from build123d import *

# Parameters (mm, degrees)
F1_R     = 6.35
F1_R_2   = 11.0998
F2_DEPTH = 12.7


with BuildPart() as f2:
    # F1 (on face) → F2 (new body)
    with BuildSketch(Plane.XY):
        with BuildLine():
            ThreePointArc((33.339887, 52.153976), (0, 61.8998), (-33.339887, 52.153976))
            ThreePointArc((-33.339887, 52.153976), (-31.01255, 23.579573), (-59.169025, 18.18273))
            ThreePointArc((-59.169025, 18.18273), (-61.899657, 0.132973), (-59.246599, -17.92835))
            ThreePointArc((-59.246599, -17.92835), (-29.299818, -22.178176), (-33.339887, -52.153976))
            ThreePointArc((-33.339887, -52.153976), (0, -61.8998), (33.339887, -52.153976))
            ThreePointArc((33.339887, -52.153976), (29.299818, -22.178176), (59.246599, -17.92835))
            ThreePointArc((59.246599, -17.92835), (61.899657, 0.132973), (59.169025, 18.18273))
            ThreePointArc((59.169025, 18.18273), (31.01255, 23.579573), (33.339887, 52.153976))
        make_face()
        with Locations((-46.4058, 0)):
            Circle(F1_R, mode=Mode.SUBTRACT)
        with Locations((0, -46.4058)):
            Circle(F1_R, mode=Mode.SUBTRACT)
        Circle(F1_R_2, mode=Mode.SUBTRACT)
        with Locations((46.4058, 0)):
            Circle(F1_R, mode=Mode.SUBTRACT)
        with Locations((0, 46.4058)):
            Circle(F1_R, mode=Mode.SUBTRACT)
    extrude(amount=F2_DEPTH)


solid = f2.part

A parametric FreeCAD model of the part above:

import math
import FreeCAD as App
import Part
import Sketcher
Q = App.Units.Quantity

doc = App.newDocument("Part")
body = doc.addObject("PartDesign::Body", "Body")

sketch1 = body.newObject("Sketcher::SketchObject", "Sketch")
sketch1.AttachmentSupport = (doc.getObject("XY_Plane"), [""])
sketch1.MapMode = "FlatFace"
sketch1.addGeometry(Part.ArcOfCircle(Part.Circle(App.Vector(0, 0, 0), App.Vector(0, 0, 1), 62), math.radians(57), math.radians(123)), False)
sketch1.addGeometry(Part.ArcOfCircle(Part.Circle(App.Vector(-48, 37, 0), App.Vector(0, 0, 1), 21), math.radians(-121), math.radians(47)), False)
sketch1.addGeometry(Part.ArcOfCircle(Part.Circle(App.Vector(0, 0, 0), App.Vector(0, 0, 1), 62), math.radians(163), math.radians(197)), False)
sketch1.addGeometry(Part.ArcOfCircle(Part.Circle(App.Vector(-46, -35, 0), App.Vector(0, 0, 1), 21), math.radians(-52), math.radians(127)), False)
sketch1.addGeometry(Part.ArcOfCircle(Part.Circle(App.Vector(0, 0, 0), App.Vector(0, 0, 1), 62), math.radians(-123), math.radians(-57)), False)
sketch1.addGeometry(Part.ArcOfCircle(Part.Circle(App.Vector(46, -35, 0), App.Vector(0, 0, 1), 21), math.radians(53), math.radians(232)), False)
sketch1.addGeometry(Part.ArcOfCircle(Part.Circle(App.Vector(0, 0, 0), App.Vector(0, 0, 1), 62), math.radians(-17), math.radians(17)), False)
sketch1.addGeometry(Part.ArcOfCircle(Part.Circle(App.Vector(48, 37, 0), App.Vector(0, 0, 1), 21), math.radians(133), math.radians(301)), False)
sketch1.addGeometry(Part.Circle(App.Vector(0, -46, 0), App.Vector(0, 0, 1), 6), False)
sketch1.addGeometry(Part.Circle(App.Vector(-46, 0, 0), App.Vector(0, 0, 1), 6), False)
sketch1.addGeometry(Part.Circle(App.Vector(0, 0, 0), App.Vector(0, 0, 1), 11), False)
sketch1.addGeometry(Part.Circle(App.Vector(46, 0, 0), App.Vector(0, 0, 1), 6), False)
sketch1.addGeometry(Part.Circle(App.Vector(0, 46, 0), App.Vector(0, 0, 1), 6), False)
sketch1.addConstraint(Sketcher.Constraint("Coincident", 0, 2, 1, 2))
sketch1.addConstraint(Sketcher.Constraint("Coincident", 1, 1, 2, 1))
sketch1.addConstraint(Sketcher.Constraint("Coincident", 2, 2, 3, 2))
sketch1.addConstraint(Sketcher.Constraint("Coincident", 3, 1, 4, 1))
sketch1.addConstraint(Sketcher.Constraint("Coincident", 4, 2, 5, 2))
sketch1.addConstraint(Sketcher.Constraint("Coincident", 5, 1, 6, 1))
sketch1.addConstraint(Sketcher.Constraint("Coincident", 6, 2, 7, 2))
sketch1.addConstraint(Sketcher.Constraint("Coincident", 7, 1, 0, 1))
sketch1.addConstraint(Sketcher.Constraint("Coincident", 0, 3, -1, 1))
sketch1.addConstraint(Sketcher.Constraint("Coincident", 2, 3, -1, 1))
sketch1.addConstraint(Sketcher.Constraint("Coincident", 4, 3, -1, 1))
sketch1.addConstraint(Sketcher.Constraint("Coincident", 6, 3, -1, 1))
sketch1.addConstraint(Sketcher.Constraint("Coincident", 10, 3, -1, 1))
sketch1.addConstraint(Sketcher.Constraint("Equal", 1, 3))
sketch1.addConstraint(Sketcher.Constraint("Equal", 0, 4))
sketch1.addConstraint(Sketcher.Constraint("Equal", 3, 5))
sketch1.addConstraint(Sketcher.Constraint("Equal", 2, 6))
sketch1.addConstraint(Sketcher.Constraint("Equal", 5, 7))
sketch1.addConstraint(Sketcher.Constraint("Equal", 8, 9))
sketch1.addConstraint(Sketcher.Constraint("Equal", 9, 11))
sketch1.addConstraint(Sketcher.Constraint("Equal", 11, 12))
sketch1.addConstraint(Sketcher.Constraint("Symmetric", 9, 3, 11, 3, -1, 1))
sketch1.addConstraint(Sketcher.Constraint("Symmetric", 8, 3, 12, 3, -1, 1))
sketch1.addConstraint(Sketcher.Constraint("Symmetric", 3, 3, 5, 3, -2))
sketch1.addConstraint(Sketcher.Constraint("Symmetric", 1, 3, 7, 3, -2))
sketch1.addConstraint(Sketcher.Constraint("PointOnObject", 8, 3, -2))
sketch1.addConstraint(Sketcher.Constraint("PointOnObject", 9, 3, -1))
sketch1.addConstraint(Sketcher.Constraint("Vertical", 0, 2, 3, 1))
sketch1.addConstraint(Sketcher.Constraint("Diameter", 8, Q("0.5 in")))
sketch1.addConstraint(Sketcher.Constraint("Diameter", 10, Q("0.874 in")))
sketch1.addConstraint(Sketcher.Constraint("Radius", 0, Q("2.4370001 in")))
sketch1.addConstraint(Sketcher.Constraint("Radius", 1, Q("0.845 in")))
sketch1.addConstraint(Sketcher.Constraint("Radius", 2, Q("2.4369999 in")))
sketch1.addConstraint(Sketcher.Constraint("DistanceY", 8, 3, -1, 1, Q("1.827 in")))
sketch1.addConstraint(Sketcher.Constraint("DistanceX", 9, 3, -1, 1, Q("1.827 in")))
sketch1.addConstraint(Sketcher.Constraint("DistanceX", 2, 2, -1, 1, 59.246599))
sketch1.addConstraint(Sketcher.Constraint("DistanceX", 3, 3, 5, 3, 92.8261))
sketch1.addConstraint(Sketcher.Constraint("DistanceY", -1, 1, 1, 3, 36.569979))
pad1 = body.newObject("PartDesign::Pad", "Pad")
pad1.Profile = sketch1
pad1.Length = Q("0.5 in")

doc.recompute()
